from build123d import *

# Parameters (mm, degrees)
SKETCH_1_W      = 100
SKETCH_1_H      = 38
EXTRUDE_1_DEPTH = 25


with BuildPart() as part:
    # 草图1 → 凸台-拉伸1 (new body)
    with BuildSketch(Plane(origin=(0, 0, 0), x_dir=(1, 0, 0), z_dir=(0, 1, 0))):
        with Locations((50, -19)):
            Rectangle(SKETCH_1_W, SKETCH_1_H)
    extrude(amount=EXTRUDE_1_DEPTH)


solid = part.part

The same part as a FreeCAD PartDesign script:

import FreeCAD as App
import Part
import Sketcher
from FreeCAD import Vector

doc = App.newDocument("Part")
body = doc.addObject("PartDesign::Body", "Body")

sketch1 = body.newObject("Sketcher::SketchObject", "Sketch")
sketch1.AttachmentSupport = (doc.getObject("XZ_Plane"), [""])
sketch1.MapMode = "FlatFace"
sketch1.addGeometry(Part.LineSegment(Vector(0, 0, 0), Vector(0, 38, 0)), False)
sketch1.addGeometry(Part.LineSegment(Vector(0, 38, 0), Vector(100, 38, 0)), False)
sketch1.addGeometry(Part.LineSegment(Vector(100, 38, 0), Vector(100, 0, 0)), False)
sketch1.addGeometry(Part.LineSegment(Vector(100, 0, 0), Vector(0, 0, 0)), False)
sketch1.addConstraint(Sketcher.Constraint("Coincident", 0, 2, 1, 1))
sketch1.addConstraint(Sketcher.Constraint("Coincident", 1, 2, 2, 1))
sketch1.addConstraint(Sketcher.Constraint("Coincident", 2, 2, 3, 1))
sketch1.addConstraint(Sketcher.Constraint("Coincident", 3, 2, 0, 1))
sketch1.addConstraint(Sketcher.Constraint("Vertical", 0))
sketch1.addConstraint(Sketcher.Constraint("Horizontal", 1))
sketch1.addConstraint(Sketcher.Constraint("Vertical", 2))
sketch1.addConstraint(Sketcher.Constraint("Horizontal", 3))
sketch1.addConstraint(Sketcher.Constraint("Coincident", 3, 2, -1, 1))
sketch1.addConstraint(Sketcher.Constraint("DistanceX", 1, 1, 1, 2, 100.0))
sketch1.addConstraint(Sketcher.Constraint("DistanceY", 0, 1, 0, 2, 38.0))
pad1 = body.newObject("PartDesign::Pad", "Pad")
pad1.Profile = sketch1
pad1.Length = 25
pad1.Reversed = True

doc.recompute()
